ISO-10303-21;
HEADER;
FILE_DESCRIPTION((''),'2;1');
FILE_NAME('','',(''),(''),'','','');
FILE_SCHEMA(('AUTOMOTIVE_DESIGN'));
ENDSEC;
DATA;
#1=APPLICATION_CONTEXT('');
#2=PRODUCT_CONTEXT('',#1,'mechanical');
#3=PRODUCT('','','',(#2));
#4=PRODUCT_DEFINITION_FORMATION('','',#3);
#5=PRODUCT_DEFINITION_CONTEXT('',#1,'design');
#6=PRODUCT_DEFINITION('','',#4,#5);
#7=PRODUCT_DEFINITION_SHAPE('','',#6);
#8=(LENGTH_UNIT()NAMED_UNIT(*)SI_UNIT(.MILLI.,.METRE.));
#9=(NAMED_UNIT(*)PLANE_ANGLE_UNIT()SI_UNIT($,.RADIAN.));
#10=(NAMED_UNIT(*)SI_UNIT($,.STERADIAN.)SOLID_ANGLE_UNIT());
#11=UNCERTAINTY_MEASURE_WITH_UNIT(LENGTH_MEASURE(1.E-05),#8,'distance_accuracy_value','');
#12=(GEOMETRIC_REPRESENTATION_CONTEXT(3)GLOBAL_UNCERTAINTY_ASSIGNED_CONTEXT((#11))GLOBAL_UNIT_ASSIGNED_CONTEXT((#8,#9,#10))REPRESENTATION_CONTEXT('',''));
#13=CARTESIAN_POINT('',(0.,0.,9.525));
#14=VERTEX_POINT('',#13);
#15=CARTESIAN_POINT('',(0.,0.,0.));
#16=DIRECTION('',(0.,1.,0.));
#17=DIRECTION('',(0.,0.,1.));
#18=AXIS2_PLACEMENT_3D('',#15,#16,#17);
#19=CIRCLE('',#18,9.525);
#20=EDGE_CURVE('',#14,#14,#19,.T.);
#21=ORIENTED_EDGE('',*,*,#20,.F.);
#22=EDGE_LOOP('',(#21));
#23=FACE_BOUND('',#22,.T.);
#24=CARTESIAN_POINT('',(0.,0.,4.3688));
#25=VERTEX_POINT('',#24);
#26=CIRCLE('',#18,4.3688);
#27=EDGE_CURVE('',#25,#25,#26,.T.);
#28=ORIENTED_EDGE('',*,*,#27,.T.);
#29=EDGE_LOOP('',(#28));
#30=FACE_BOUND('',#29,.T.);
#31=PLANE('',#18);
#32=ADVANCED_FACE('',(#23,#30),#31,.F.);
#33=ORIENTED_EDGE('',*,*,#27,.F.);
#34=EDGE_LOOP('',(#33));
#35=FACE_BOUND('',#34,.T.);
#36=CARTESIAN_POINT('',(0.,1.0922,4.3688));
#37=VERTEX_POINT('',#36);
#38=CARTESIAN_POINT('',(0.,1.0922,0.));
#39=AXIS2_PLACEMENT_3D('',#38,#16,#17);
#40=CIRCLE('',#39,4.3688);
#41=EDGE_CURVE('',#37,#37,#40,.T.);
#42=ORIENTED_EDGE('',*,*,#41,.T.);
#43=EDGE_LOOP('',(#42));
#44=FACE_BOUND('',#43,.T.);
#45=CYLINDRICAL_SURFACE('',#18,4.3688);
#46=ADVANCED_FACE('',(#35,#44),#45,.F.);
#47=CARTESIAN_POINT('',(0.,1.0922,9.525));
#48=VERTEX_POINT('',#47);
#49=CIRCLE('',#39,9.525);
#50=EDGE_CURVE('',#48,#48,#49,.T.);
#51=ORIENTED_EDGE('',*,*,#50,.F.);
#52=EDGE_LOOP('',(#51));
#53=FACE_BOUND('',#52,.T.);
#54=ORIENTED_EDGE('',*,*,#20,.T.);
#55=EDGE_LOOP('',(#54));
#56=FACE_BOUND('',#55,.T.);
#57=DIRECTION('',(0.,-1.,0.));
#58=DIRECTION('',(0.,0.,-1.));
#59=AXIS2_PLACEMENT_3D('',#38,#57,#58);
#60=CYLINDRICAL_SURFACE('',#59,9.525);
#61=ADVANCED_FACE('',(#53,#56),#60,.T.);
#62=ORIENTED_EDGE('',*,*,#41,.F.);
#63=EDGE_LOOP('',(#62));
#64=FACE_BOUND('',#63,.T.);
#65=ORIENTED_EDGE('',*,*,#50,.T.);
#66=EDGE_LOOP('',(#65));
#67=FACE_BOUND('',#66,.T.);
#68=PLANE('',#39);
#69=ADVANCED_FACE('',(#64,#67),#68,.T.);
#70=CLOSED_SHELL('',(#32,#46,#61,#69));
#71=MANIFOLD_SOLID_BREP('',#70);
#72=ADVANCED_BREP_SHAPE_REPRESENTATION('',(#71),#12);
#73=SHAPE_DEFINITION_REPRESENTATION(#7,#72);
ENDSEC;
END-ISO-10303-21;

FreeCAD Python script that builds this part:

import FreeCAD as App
import Part
import Sketcher
from FreeCAD import Vector
Q = App.Units.Quantity

doc = App.newDocument("Part")
body = doc.addObject("PartDesign::Body", "Body")

# Sketch on XZ plane
sketch1 = body.newObject("Sketcher::SketchObject", "Sketch")
sketch1.AttachmentSupport = (doc.getObject("XZ_Plane"), [""])
sketch1.MapMode = "FlatFace"
sketch1.addGeometry(Part.Circle(Vector(0, 0, 0), Vector(0, 0, 1), 9.525), False)
sketch1.addConstraint([
    Sketcher.Constraint("Coincident", 0, 3, -1, 1),
    Sketcher.Constraint("Diameter", 0, Q("0.75 in")),
])
pad1 = body.newObject("PartDesign::Pad", "Pad")
pad1.Profile = sketch1
pad1.Length = Q("0.043 in")
pad1.Reversed = True

# Sketch on XZ plane
sketch2 = body.newObject("Sketcher::SketchObject", "Sketch001")
sketch2.AttachmentSupport = (doc.getObject("XZ_Plane"), [""])
sketch2.MapMode = "FlatFace"
sketch2.AttachmentOffset = App.Placement(Vector(0, 0, -0.043 * 25.4), App.Rotation())
sketch2.addGeometry(Part.Circle(Vector(0, 0, 0), Vector(0, 0, 1), 4.3688), False)
sketch2.addConstraint([
    Sketcher.Constraint("Coincident", 0, 3, -1, 1),
    Sketcher.Constraint("Diameter", 0, Q("0.344 in")),
])
pocket1 = body.newObject("PartDesign::Pocket", "Pocket")
pocket1.Profile = sketch2
pocket1.Type = "ThroughAll"
pocket1.Reversed = True

doc.recompute()
